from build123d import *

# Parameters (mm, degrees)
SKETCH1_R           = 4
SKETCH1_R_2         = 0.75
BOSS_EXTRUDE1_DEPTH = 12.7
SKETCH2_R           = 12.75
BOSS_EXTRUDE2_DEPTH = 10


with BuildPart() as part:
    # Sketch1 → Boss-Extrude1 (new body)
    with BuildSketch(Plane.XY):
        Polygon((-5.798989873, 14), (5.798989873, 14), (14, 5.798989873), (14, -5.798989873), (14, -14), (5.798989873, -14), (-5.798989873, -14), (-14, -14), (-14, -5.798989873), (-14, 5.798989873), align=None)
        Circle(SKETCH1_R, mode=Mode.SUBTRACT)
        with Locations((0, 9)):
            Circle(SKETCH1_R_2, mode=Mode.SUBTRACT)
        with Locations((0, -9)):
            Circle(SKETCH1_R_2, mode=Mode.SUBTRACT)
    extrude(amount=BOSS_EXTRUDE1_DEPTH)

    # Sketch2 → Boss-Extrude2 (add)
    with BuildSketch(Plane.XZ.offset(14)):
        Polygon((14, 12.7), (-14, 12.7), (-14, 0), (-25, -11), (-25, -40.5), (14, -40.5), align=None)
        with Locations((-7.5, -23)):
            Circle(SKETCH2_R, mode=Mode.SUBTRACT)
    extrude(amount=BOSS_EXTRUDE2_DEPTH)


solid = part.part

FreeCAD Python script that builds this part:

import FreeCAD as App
import Part
import Sketcher
Q = App.Units.Quantity

doc = App.newDocument("Part")
body = doc.addObject("PartDesign::Body", "Body")

sketch1 = body.newObject("Sketcher::SketchObject", "Sketch")
sketch1.AttachmentSupport = (doc.getObject("XY_Plane"), [""])
sketch1.MapMode = "FlatFace"
sketch1.addGeometry(Part.LineSegment(App.Vector(5.79899, 14, 0), App.Vector(-5.79899, 14, 0)), False)
sketch1.addGeometry(Part.LineSegment(App.Vector(-5.79899, 14, 0), App.Vector(-14, 5.79899, 0)), False)
sketch1.addGeometry(Part.LineSegment(App.Vector(-14, 5.79899, 0), App.Vector(-14, -14, 0)), False)
sketch1.addGeometry(Part.LineSegment(App.Vector(-14, -14, 0), App.Vector(14, -14, 0)), False)
sketch1.addGeometry(Part.LineSegment(App.Vector(14, -14, 0), App.Vector(14, 5.79899, 0)), False)
sketch1.addGeometry(Part.LineSegment(App.Vector(14, 5.79899, 0), App.Vector(5.79899, 14, 0)), False)
sketch1.addGeometry(Part.Circle(App.Vector(0, -9, 0), App.Vector(0, 0, 1), 0.75), False)
sketch1.addGeometry(Part.Circle(App.Vector(0, 0, 0), App.Vector(0, 0, 1), 4), False)
sketch1.addGeometry(Part.Circle(App.Vector(0, 9, 0), App.Vector(0, 0, 1), 0.75), False)
sketch1.addConstraint(Sketcher.Constraint("Coincident", 0, 2, 1, 1))
sketch1.addConstraint(Sketcher.Constraint("Coincident", 1, 2, 2, 1))
sketch1.addConstraint(Sketcher.Constraint("Coincident", 2, 2, 3, 1))
sketch1.addConstraint(Sketcher.Constraint("Coincident", 3, 2, 4, 1))
sketch1.addConstraint(Sketcher.Constraint("Coincident", 4, 2, 5, 1))
sketch1.addConstraint(Sketcher.Constraint("Coincident", 5, 2, 0, 1))
sketch1.addConstraint(Sketcher.Constraint("Horizontal", 0))
sketch1.addConstraint(Sketcher.Constraint("Vertical", 2))
sketch1.addConstraint(Sketcher.Constraint("Horizontal", 3))
sketch1.addConstraint(Sketcher.Constraint("Vertical", 4))
sketch1.addConstraint(Sketcher.Constraint("Coincident", 7, 3, -1, 1))
sketch1.addConstraint(Sketcher.Constraint("Equal", 6, 8))
sketch1.addConstraint(Sketcher.Constraint("Symmetric", 6, 3, 8, 3, -1, 1))
sketch1.addConstraint(Sketcher.Constraint("Symmetric", 1, 2, 4, 2, -2))
sketch1.addConstraint(Sketcher.Constraint("PointOnObject", 6, 3, -2))
sketch1.addConstraint(Sketcher.Constraint("Perpendicular", 1, 5))
sketch1.addConstraint(Sketcher.Constraint("Equal", 1, 5))
sketch1.addConstraint(Sketcher.Constraint("Diameter", 7, Q("8 mm")))
sketch1.addConstraint(Sketcher.Constraint("Diameter", 6, Q("1.5 mm")))
sketch1.addConstraint(Sketcher.Constraint("DistanceX", 3, 1, 3, 2, Q("28 mm")))
sketch1.addConstraint(Sketcher.Constraint("DistanceY", 6, 3, -1, 1, Q("9 mm")))
sketch1.addConstraint(Sketcher.Constraint("DistanceY", -1, 1, 0, 2, Q("14 mm")))
sketch1.addConstraint(Sketcher.Constraint("DistanceY", 2, 2, -1, 1, Q("14 mm")))
sketch1.addConstraint(Sketcher.Constraint("DistanceX", 0, 2, 0, 1, Q("11.59798 mm")))
pad1 = body.newObject("PartDesign::Pad", "Pad")
pad1.Profile = sketch1
pad1.Length = 12.7

sketch2 = body.newObject("Sketcher::SketchObject", "Sketch001")
sketch2.AttachmentSupport = (doc.getObject("XZ_Plane"), [""])
sketch2.MapMode = "FlatFace"
sketch2.AttachmentOffset = App.Placement(App.Vector(0, 0, 14), App.Rotation())
sketch2.addGeometry(Part.LineSegment(App.Vector(14, 12.7, 0), App.Vector(-14, 12.7, 0)), False)
sketch2.addGeometry(Part.LineSegment(App.Vector(-14, 12.7, 0), App.Vector(-14, 0, 0)), False)
sketch2.addGeometry(Part.LineSegment(App.Vector(-14, 0, 0), App.Vector(-25, -11, 0)), False)
sketch2.addGeometry(Part.LineSegment(App.Vector(-25, -11, 0), App.Vector(-25, -40.5, 0)), False)
sketch2.addGeometry(Part.LineSegment(App.Vector(-25, -40.5, 0), App.Vector(14, -40.5, 0)), False)
sketch2.addGeometry(Part.LineSegment(App.Vector(14, -40.5, 0), App.Vector(14, 12.7, 0)), False)
sketch2.addGeometry(Part.Circle(App.Vector(-7.5, -23, 0), App.Vector(0, 0, 1), 12.75), False)
sketch2.addConstraint(Sketcher.Constraint("Coincident", 0, 2, 1, 1))
sketch2.addConstraint(Sketcher.Constraint("Coincident", 1, 2, 2, 1))
sketch2.addConstraint(Sketcher.Constraint("Coincident", 2, 2, 3, 1))
sketch2.addConstraint(Sketcher.Constraint("Coincident", 3, 2, 4, 1))
sketch2.addConstraint(Sketcher.Constraint("Coincident", 4, 2, 5, 1))
sketch2.addConstraint(Sketcher.Constraint("Coincident", 5, 2, 0, 1))
sketch2.addConstraint(Sketcher.Constraint("Horizontal", 0))
sketch2.addConstraint(Sketcher.Constraint("Vertical", 1))
sketch2.addConstraint(Sketcher.Constraint("Vertical", 3))
sketch2.addConstraint(Sketcher.Constraint("Horizontal", 4))
sketch2.addConstraint(Sketcher.Constraint("Vertical", 5))
sketch2.addConstraint(Sketcher.Constraint("PointOnObject", 1, 2, -1))
sketch2.addConstraint(Sketcher.Constraint("Diameter", 6, Q("25.5 mm")))
sketch2.addConstraint(Sketcher.Constraint("DistanceX", 0, 2, 0, 1, Q("28 mm")))
sketch2.addConstraint(Sketcher.Constraint("DistanceX", 4, 1, 4, 2, Q("39 mm")))
sketch2.addConstraint(Sketcher.Constraint("Angle", 2, Q("-135 deg")))
sketch2.addConstraint(Sketcher.Constraint("DistanceY", 1, 2, 1, 1, Q("12.7 mm")))
sketch2.addConstraint(Sketcher.Constraint("DistanceY", 3, 2, 3, 1, Q("29.5 mm")))
sketch2.addConstraint(Sketcher.Constraint("DistanceY", 6, 3, -1, 1, Q("23 mm")))
sketch2.addConstraint(Sketcher.Constraint("DistanceX", 0, 2, -1, 1, Q("14 mm")))
sketch2.addConstraint(Sketcher.Constraint("DistanceX", 6, 3, -1, 1, Q("7.5 mm")))
pad2 = body.newObject("PartDesign::Pad", "Pad001")
pad2.Profile = sketch2
pad2.Length = 10

doc.recompute()
